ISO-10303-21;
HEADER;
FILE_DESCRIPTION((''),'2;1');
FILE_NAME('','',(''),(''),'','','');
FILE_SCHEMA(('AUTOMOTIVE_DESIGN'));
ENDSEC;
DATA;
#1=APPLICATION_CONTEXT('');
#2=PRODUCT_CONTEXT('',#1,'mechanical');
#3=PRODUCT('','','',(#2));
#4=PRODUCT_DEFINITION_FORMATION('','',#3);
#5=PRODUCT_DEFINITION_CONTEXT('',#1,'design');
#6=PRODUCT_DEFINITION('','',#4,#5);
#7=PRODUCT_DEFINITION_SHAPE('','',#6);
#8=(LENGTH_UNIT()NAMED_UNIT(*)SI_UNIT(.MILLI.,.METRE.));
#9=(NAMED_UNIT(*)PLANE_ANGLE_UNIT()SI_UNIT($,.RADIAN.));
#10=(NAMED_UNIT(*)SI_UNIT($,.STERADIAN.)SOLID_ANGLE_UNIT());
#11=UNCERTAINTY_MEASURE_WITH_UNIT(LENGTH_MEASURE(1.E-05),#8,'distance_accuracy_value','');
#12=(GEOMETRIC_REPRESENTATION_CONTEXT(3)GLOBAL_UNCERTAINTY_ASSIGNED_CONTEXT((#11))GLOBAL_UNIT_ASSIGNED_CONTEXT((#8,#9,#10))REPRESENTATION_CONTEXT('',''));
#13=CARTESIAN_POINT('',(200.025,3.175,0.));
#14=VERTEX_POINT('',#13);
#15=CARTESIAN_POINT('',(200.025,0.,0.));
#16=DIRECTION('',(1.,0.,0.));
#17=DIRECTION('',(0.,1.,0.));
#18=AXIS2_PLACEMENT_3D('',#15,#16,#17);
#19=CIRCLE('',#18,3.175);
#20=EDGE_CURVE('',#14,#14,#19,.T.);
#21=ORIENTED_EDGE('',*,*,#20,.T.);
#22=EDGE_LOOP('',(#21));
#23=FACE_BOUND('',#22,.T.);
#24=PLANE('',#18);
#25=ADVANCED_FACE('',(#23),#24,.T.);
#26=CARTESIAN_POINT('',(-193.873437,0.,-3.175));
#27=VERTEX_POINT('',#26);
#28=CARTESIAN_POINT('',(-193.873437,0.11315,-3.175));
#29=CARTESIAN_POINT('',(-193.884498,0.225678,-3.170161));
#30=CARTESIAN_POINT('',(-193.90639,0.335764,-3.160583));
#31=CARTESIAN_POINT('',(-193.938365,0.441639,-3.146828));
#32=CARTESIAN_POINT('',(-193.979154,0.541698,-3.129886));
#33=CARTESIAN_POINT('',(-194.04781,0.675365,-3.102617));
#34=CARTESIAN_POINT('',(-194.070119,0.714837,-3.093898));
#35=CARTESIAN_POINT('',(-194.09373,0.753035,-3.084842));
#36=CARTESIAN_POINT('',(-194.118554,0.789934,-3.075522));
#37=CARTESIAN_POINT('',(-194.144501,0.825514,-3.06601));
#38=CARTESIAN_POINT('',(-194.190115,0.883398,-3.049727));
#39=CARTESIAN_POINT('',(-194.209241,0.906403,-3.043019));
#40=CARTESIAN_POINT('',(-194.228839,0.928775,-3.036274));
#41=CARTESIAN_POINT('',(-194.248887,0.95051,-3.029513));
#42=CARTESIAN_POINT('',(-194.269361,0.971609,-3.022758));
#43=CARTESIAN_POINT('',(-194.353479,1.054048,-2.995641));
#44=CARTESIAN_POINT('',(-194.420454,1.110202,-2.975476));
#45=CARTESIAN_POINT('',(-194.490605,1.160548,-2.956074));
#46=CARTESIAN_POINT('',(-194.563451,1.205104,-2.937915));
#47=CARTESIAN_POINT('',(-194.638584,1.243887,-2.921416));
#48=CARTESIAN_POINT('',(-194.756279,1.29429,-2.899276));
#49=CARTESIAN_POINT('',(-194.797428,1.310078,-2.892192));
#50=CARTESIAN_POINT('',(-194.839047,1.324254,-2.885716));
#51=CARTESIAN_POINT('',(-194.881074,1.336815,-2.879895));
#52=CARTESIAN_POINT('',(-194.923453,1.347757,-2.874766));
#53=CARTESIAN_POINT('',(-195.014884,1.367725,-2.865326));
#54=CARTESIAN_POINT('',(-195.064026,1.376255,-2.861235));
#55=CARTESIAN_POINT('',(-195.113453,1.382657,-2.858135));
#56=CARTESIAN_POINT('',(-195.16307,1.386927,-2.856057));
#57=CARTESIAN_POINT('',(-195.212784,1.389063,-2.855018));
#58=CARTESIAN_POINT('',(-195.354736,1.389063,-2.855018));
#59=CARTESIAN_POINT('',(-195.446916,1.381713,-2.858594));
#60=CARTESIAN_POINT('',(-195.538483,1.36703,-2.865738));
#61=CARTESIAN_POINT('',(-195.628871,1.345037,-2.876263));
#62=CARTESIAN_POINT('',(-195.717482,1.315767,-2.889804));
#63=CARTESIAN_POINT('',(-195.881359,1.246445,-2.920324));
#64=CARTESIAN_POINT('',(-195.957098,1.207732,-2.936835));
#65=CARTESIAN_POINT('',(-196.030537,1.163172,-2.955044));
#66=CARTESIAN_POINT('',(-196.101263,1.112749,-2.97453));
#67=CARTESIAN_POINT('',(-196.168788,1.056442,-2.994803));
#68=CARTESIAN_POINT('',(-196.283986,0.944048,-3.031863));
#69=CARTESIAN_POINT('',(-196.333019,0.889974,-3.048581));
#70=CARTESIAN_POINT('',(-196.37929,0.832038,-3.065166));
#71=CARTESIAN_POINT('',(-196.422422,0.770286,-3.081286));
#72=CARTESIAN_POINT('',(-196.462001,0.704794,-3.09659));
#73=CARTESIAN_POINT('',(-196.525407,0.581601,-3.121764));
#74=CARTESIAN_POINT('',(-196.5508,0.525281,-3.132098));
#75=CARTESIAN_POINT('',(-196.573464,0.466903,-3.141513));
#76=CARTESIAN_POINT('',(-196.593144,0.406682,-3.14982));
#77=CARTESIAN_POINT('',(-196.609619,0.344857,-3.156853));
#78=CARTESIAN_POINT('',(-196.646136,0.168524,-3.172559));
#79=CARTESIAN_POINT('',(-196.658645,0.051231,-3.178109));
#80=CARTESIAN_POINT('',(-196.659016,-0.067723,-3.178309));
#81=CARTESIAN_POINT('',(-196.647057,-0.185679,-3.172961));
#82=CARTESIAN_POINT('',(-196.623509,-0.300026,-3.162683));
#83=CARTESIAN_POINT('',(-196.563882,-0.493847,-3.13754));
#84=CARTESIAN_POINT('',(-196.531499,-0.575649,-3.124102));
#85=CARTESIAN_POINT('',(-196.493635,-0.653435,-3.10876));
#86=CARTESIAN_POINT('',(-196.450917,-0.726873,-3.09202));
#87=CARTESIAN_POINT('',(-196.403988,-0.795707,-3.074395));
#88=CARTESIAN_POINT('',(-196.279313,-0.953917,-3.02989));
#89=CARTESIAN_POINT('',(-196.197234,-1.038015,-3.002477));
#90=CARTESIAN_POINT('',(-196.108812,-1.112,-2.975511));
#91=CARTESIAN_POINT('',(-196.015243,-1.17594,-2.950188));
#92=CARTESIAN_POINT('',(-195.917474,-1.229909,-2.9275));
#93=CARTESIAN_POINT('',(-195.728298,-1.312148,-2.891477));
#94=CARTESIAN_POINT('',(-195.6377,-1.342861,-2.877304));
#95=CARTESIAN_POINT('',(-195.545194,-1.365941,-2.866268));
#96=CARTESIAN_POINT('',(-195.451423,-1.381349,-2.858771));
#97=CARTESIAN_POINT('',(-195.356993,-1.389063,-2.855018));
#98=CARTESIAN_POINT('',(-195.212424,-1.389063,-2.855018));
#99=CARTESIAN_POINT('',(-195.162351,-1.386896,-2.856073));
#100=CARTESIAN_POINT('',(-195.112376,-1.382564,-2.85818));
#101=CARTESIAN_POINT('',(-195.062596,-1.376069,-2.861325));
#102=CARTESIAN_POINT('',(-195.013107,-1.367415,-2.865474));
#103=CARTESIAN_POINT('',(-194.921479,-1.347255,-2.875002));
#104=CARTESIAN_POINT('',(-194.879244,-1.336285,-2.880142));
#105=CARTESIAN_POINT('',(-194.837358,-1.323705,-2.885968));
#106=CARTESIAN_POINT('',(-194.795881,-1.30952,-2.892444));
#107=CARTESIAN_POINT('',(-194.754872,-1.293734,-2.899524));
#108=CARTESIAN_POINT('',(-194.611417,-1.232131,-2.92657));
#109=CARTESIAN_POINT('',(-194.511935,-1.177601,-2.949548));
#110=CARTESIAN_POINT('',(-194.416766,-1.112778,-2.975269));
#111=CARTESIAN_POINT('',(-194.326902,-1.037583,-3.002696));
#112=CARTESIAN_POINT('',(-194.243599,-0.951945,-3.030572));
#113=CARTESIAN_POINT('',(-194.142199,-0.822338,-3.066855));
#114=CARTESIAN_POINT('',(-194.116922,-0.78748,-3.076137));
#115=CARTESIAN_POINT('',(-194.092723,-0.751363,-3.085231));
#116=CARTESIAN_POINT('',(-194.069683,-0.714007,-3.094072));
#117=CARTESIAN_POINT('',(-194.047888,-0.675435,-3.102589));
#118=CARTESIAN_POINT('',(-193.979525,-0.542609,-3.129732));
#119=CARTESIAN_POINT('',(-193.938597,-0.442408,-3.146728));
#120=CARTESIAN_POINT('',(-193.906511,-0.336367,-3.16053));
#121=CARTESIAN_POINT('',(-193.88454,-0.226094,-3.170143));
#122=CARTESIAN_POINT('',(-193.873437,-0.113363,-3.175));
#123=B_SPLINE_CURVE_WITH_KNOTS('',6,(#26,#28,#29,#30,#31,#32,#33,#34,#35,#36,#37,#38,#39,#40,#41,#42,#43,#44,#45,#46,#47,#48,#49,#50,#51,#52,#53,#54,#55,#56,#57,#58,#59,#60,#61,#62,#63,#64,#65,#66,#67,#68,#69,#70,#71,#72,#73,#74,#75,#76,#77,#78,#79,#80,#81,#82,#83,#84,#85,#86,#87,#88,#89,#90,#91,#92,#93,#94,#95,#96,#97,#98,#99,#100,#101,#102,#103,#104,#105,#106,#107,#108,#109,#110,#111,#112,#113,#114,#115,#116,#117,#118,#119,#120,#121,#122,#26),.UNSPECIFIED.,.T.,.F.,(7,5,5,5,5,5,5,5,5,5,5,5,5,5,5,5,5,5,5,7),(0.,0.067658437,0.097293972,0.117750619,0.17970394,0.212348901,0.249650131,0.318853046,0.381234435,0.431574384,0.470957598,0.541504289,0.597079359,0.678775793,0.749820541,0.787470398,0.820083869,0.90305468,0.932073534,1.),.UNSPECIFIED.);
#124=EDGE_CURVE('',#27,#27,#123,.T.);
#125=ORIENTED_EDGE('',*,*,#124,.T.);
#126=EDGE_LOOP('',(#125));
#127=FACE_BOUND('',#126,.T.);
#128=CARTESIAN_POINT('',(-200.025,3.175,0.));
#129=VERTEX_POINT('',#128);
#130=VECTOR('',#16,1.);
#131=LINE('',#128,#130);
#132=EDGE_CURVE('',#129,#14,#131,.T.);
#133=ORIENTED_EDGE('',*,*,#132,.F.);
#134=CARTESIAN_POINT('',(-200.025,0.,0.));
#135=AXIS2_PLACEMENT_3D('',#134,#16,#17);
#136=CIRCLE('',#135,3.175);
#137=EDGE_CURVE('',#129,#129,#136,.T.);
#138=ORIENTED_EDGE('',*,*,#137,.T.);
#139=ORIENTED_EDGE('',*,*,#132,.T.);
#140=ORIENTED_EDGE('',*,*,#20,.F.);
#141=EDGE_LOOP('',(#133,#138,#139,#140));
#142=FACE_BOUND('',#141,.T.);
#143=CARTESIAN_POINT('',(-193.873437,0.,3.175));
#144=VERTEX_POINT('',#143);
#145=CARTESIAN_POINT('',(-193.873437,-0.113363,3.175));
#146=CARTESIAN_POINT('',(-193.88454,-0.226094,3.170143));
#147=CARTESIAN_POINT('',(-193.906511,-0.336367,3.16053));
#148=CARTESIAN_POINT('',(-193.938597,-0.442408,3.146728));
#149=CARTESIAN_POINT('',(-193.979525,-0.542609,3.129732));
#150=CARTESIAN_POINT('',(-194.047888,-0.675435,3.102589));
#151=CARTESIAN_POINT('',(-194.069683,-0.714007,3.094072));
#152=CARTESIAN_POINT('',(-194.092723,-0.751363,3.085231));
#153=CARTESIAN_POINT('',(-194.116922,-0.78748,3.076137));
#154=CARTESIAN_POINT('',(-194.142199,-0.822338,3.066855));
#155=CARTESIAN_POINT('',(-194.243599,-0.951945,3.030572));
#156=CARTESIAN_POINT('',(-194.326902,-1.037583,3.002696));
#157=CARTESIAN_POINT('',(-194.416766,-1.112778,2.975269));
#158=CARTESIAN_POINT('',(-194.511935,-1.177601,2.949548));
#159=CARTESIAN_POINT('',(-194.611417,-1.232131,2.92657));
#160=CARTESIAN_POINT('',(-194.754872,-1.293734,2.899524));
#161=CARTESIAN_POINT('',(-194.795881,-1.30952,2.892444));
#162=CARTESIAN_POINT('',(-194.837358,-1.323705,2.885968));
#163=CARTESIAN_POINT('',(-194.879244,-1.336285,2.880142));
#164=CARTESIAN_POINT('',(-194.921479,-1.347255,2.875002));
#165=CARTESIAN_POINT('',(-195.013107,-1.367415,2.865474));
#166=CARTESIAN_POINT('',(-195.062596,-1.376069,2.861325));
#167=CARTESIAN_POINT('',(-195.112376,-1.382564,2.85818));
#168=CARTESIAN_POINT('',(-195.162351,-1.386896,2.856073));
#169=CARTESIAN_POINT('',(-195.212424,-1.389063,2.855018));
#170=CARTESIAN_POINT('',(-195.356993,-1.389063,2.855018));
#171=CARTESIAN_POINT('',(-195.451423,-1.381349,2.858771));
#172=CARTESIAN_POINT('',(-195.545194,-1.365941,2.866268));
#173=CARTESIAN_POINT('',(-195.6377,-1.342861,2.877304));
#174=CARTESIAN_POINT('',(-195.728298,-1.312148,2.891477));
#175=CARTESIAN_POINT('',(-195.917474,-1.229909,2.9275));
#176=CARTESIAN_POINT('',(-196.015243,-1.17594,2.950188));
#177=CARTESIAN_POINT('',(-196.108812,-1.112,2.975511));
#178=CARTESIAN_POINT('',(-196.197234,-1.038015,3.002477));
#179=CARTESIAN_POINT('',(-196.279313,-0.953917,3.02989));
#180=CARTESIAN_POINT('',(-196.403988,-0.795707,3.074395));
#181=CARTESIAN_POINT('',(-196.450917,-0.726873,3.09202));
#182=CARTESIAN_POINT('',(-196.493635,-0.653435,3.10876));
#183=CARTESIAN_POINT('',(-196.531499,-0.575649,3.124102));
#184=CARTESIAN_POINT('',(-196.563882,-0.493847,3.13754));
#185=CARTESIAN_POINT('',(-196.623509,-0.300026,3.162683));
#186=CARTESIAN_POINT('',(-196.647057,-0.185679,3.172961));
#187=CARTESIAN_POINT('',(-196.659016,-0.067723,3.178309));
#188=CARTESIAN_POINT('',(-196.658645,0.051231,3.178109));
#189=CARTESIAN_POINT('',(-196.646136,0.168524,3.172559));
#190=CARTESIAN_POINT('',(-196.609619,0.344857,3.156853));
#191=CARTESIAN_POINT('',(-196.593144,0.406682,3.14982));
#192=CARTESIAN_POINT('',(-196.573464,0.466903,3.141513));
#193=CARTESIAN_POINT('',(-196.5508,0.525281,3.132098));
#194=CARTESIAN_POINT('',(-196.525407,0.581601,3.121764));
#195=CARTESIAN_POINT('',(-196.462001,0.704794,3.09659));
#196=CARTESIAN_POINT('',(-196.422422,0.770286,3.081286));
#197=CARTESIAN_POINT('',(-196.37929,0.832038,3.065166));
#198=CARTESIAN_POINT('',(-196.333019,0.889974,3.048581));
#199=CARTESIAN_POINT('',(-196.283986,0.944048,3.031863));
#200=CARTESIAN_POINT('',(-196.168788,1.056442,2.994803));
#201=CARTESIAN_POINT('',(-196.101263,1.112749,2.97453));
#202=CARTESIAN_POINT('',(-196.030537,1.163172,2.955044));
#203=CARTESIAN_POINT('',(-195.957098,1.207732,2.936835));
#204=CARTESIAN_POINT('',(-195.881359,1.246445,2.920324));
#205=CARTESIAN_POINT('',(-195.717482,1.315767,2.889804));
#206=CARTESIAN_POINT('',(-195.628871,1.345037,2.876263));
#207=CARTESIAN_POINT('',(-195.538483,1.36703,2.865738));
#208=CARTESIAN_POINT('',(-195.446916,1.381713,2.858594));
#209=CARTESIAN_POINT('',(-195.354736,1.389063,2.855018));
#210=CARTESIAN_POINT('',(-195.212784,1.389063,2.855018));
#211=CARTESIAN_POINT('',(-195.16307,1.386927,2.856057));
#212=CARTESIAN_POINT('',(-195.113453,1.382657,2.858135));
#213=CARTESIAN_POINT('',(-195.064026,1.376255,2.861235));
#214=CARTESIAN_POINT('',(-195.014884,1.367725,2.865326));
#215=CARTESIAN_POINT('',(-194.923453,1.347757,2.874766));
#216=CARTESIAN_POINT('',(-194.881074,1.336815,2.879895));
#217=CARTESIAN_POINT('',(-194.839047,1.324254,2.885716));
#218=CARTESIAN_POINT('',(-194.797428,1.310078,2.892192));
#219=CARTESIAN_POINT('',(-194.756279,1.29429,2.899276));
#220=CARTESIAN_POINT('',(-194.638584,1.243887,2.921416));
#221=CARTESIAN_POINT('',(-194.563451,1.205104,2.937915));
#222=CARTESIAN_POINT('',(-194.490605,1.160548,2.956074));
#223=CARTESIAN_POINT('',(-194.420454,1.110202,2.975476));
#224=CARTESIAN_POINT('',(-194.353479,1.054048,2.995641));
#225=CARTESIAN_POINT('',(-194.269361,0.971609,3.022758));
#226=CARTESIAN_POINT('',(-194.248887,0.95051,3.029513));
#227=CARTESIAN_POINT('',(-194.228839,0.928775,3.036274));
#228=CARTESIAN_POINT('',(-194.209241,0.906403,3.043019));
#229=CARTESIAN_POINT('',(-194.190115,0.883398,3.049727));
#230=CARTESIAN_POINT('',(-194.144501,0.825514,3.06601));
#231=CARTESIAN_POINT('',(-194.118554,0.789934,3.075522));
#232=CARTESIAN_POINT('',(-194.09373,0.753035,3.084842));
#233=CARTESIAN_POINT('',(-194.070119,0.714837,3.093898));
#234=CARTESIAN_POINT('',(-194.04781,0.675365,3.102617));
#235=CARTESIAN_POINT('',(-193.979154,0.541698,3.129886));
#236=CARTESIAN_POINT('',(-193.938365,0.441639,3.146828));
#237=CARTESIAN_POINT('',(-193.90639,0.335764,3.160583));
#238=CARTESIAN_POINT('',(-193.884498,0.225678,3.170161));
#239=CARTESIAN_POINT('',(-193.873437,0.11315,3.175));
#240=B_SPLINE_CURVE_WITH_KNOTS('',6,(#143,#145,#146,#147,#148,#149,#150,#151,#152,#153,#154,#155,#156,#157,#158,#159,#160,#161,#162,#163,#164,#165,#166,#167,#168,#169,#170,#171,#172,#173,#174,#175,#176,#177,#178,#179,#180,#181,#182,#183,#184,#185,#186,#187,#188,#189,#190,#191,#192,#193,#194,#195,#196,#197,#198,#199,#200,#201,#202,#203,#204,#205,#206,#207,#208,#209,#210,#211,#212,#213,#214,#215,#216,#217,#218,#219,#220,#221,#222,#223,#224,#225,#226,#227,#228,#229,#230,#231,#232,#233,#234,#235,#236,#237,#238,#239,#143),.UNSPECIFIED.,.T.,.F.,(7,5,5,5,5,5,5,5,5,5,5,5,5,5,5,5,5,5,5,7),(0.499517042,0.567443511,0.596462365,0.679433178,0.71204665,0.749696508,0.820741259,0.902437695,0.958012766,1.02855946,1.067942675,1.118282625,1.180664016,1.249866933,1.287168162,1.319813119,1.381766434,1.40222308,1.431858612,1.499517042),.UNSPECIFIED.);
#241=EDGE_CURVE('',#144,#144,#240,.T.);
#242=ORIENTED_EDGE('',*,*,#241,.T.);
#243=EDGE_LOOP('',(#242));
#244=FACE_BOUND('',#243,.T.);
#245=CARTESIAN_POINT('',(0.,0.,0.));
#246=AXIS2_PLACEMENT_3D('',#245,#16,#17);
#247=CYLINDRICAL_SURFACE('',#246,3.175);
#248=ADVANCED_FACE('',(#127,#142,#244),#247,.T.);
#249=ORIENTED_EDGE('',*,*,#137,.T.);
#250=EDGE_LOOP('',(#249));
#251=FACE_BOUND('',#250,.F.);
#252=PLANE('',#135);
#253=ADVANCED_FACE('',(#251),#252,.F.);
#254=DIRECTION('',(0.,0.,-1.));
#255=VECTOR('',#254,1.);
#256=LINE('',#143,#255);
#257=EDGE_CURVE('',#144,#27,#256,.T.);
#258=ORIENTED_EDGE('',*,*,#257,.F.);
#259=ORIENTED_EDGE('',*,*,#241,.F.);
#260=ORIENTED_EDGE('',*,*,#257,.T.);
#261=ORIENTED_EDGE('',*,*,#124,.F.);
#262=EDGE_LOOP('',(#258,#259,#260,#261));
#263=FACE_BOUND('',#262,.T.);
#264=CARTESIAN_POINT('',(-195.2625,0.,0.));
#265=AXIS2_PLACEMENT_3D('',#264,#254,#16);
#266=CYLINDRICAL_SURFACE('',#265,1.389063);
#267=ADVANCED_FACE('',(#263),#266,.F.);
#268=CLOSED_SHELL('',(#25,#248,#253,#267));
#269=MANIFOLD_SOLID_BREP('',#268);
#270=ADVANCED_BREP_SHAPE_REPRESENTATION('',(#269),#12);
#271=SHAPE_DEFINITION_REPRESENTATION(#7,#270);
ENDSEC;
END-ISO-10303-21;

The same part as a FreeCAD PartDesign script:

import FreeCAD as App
import Part
import Sketcher
from FreeCAD import Vector
Q = App.Units.Quantity

doc = App.newDocument("Part")
body = doc.addObject("PartDesign::Body", "Body")

# Sketch on YZ plane
sketch1 = body.newObject("Sketcher::SketchObject", "Sketch")
sketch1.AttachmentSupport = (doc.getObject("YZ_Plane"), [""])
sketch1.MapMode = "FlatFace"
sketch1.addGeometry(Part.Circle(Vector(0, 0, 0), Vector(0, 0, 1), 3.2), False)
sketch1.addConstraint(Sketcher.Constraint("Coincident", 0, 3, -1, 1))
sketch1.addConstraint(Sketcher.Constraint("Diameter", 0, Q("0.25 in")))
pad1 = body.newObject("PartDesign::Pad", "Pad")
pad1.Profile = sketch1
pad1.Length = Q("15.75 in")
pad1.Midplane = True

# Sketch on XY plane
sketch2 = body.newObject("Sketcher::SketchObject", "Sketch001")
sketch2.AttachmentSupport = (doc.getObject("XY_Plane"), [""])
sketch2.MapMode = "FlatFace"
sketch2.addGeometry(Part.Circle(Vector(-195.3, 0, 0), Vector(0, 0, 1), 1.4), False)
sketch2.addConstraint(Sketcher.Constraint("PointOnObject", 0, 3, -1))
sketch2.addConstraint(Sketcher.Constraint("Diameter", 0, Q("0.109375 in")))
sketch2.addConstraint(Sketcher.Constraint("DistanceX", 0, 3, -1, 1, Q("7.6875 in")))
pocket1 = body.newObject("PartDesign::Pocket", "Pocket")
pocket1.Profile = sketch2
pocket1.Type = "ThroughAll"
pocket1.Midplane = True

doc.recompute()
